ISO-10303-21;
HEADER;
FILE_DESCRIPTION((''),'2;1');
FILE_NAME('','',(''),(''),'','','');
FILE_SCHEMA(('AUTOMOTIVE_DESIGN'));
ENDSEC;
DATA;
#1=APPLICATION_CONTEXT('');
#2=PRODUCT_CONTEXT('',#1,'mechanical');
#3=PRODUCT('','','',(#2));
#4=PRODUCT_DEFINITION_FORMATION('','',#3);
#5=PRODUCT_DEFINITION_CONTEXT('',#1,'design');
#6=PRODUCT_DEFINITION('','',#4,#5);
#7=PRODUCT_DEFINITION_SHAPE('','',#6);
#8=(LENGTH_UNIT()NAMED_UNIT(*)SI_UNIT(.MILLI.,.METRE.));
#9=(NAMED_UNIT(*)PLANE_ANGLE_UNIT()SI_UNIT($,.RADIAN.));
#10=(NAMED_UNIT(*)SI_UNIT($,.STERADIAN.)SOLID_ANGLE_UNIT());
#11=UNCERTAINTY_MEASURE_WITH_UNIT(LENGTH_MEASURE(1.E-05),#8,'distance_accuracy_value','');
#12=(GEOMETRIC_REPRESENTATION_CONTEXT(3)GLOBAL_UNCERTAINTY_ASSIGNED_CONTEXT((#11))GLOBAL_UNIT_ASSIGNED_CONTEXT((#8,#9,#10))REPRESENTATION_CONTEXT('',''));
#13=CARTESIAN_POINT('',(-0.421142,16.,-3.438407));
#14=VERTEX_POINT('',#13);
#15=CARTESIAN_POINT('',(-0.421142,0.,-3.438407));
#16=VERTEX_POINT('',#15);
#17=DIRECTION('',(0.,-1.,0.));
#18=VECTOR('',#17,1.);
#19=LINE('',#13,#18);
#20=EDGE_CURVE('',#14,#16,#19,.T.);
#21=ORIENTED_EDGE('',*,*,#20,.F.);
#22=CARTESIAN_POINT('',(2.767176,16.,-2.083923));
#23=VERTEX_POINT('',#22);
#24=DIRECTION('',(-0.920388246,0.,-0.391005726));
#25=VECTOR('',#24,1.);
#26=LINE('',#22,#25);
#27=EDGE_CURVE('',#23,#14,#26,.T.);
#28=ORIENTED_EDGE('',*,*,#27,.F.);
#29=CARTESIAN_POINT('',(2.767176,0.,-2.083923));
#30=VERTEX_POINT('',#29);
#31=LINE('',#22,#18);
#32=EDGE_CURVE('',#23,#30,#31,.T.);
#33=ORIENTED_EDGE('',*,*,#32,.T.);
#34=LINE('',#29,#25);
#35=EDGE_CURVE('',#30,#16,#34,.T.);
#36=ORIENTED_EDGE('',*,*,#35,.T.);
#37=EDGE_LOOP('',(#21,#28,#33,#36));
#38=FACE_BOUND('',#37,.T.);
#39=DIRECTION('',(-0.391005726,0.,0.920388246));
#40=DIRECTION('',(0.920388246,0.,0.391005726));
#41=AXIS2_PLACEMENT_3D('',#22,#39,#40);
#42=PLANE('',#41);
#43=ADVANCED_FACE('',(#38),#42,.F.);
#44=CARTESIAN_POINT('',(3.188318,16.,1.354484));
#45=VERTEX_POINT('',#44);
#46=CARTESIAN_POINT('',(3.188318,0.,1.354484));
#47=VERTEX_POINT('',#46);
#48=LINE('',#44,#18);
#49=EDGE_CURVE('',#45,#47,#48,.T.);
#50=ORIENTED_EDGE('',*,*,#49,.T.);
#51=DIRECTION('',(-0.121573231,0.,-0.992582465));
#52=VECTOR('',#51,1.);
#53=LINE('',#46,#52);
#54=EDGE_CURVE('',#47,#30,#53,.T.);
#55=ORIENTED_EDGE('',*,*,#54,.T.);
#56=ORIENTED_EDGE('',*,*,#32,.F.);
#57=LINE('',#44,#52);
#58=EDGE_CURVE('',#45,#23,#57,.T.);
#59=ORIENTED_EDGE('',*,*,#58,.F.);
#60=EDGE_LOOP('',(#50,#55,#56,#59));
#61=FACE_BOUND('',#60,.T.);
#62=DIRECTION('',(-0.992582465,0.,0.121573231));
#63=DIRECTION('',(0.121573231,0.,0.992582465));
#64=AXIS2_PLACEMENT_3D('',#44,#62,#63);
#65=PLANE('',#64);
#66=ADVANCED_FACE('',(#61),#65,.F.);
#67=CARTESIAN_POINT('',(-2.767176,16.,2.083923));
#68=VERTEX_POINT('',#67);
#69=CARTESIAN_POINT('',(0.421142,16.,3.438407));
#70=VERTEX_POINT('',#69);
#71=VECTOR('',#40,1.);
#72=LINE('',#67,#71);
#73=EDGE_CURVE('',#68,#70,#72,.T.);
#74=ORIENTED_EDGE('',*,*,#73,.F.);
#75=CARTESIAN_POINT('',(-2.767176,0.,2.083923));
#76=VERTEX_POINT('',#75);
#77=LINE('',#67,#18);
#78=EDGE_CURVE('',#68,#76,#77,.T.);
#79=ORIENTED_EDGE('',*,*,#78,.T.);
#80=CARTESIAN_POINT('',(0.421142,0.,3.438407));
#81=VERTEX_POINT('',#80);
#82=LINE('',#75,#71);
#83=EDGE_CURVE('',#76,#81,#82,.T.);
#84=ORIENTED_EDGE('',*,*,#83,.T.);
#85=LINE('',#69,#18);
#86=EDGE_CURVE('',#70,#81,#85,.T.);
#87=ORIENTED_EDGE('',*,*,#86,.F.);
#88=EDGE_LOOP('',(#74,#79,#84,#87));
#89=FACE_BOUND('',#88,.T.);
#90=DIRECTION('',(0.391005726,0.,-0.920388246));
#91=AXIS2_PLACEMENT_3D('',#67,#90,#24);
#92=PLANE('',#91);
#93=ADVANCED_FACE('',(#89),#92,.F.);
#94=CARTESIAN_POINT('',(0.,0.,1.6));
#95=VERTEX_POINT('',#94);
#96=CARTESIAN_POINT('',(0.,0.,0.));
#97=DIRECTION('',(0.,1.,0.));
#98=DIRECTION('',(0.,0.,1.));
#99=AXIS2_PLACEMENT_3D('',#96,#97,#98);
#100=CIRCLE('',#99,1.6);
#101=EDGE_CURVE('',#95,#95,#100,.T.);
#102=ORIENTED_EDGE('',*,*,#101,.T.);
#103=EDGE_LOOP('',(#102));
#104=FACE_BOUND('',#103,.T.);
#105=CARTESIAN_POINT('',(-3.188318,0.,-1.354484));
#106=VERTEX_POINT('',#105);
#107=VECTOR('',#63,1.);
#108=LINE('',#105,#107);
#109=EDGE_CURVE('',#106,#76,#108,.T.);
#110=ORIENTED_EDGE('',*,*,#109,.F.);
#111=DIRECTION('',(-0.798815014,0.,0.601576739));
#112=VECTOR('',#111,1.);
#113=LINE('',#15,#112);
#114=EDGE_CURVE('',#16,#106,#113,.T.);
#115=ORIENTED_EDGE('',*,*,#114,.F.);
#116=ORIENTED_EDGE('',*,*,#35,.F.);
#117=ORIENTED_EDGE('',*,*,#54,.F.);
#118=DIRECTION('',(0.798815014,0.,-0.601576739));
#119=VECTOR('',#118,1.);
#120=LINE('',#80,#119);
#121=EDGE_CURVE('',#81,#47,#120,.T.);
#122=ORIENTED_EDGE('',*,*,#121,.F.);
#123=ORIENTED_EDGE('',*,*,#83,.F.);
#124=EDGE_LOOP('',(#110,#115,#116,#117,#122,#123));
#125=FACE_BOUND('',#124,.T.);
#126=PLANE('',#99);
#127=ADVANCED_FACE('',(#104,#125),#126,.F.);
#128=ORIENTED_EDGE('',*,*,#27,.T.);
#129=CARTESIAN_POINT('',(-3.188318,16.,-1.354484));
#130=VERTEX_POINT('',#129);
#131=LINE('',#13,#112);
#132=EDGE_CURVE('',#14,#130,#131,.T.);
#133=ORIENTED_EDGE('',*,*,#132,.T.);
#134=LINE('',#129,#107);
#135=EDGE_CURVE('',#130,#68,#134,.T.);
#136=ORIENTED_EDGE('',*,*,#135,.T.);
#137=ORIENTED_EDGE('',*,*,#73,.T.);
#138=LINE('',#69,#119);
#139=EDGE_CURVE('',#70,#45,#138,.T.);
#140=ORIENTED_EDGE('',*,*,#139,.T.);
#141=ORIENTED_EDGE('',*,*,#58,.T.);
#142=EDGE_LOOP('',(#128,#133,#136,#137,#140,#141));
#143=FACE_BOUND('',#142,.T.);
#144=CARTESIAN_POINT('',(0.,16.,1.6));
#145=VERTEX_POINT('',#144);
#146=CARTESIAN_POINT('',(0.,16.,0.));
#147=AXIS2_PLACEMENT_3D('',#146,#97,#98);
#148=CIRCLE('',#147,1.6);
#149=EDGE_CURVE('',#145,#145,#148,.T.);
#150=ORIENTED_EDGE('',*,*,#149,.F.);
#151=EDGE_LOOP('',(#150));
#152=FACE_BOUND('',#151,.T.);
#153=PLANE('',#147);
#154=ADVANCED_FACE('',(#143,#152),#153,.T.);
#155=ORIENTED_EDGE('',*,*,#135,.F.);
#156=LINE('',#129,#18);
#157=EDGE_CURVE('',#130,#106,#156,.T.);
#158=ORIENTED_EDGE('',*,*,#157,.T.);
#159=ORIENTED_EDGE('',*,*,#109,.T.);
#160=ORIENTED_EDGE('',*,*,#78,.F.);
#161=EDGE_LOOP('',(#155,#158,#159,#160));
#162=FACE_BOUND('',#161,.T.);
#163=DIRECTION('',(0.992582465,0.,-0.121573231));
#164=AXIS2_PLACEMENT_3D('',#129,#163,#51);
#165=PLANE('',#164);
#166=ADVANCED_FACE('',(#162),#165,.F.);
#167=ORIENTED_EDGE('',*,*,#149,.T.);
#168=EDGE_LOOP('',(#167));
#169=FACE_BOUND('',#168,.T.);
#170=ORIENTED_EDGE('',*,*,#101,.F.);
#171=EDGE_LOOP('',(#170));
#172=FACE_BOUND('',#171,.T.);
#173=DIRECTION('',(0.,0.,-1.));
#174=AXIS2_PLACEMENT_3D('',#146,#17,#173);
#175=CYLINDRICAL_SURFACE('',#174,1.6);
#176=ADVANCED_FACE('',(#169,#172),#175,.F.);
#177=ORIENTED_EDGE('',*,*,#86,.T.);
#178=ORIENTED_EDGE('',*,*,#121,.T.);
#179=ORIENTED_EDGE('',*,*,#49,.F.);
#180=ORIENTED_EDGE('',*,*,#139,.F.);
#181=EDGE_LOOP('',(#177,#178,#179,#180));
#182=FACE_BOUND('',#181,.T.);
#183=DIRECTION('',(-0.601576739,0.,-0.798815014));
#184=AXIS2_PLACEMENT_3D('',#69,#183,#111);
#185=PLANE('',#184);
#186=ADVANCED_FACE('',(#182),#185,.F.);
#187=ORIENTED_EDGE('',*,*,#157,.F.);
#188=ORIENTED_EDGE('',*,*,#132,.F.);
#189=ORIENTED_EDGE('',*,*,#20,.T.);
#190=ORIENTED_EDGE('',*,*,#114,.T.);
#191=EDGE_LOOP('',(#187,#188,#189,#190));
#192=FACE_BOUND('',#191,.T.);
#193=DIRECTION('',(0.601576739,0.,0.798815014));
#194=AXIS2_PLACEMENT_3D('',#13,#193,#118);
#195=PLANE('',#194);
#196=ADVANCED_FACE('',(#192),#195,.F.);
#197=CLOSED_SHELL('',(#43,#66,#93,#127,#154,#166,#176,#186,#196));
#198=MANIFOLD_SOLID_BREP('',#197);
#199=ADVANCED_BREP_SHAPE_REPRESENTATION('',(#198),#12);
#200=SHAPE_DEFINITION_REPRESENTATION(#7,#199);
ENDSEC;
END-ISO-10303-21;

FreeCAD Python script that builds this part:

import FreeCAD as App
import Part
import Sketcher
from FreeCAD import Vector
Q = App.Units.Quantity


def add_polygon(sketch, points):
    """Adds a closed chain of lines whose ends are joined by coincident constraints."""
    first, n = sketch.GeometryCount, len(points)
    for a, b in zip(points, points[1:] + points[:1]):
        sketch.addGeometry(Part.LineSegment(App.Vector(*a, 0), App.Vector(*b, 0)), False)
    for i in range(n):
        sketch.addConstraint(Sketcher.Constraint("Coincident", first + i, 2, first + (i + 1) % n, 1))

doc = App.newDocument("Part")
body = doc.addObject("PartDesign::Body", "Body")

sketch1 = body.newObject("Sketcher::SketchObject", "Sketch")
sketch1.AttachmentSupport = (doc.getObject("XZ_Plane"), [""])
sketch1.MapMode = "FlatFace"
add_polygon(sketch1, [(2.767176, -2.083923), (-0.421142, -3.438407), (-3.188318, -1.354484), (-2.767176, 2.083923), (0.421142, 3.438407), (3.188318, 1.354484)])
sketch1.addGeometry(Part.Circle(Vector(0, 0, 0), Vector(0, 0, 1), 1.6), False)
sketch1.addConstraint([
    Sketcher.Constraint("Coincident", 6, 3, -1, 1),
    Sketcher.Constraint("Symmetric", 0, 2, 3, 2, -1, 1),
    Sketcher.Constraint("Symmetric", 1, 2, 4, 2, -1, 1),
    Sketcher.Constraint("Symmetric", 2, 2, 5, 2, -1, 1),
    Sketcher.Constraint("Equal", 0, 1),
    Sketcher.Constraint("Equal", 1, 2),
    Sketcher.Constraint("Diameter", 6, Q("3.2 mm")),
    Sketcher.Constraint("Distance", 0, Q("3.464102 mm")),
    Sketcher.Constraint("DistanceX", 1, 2, -1, 1, Q("3.188318 mm")),
    Sketcher.Constraint("DistanceY", 0, 2, 2, 2, Q("5.522329 mm")),
    Sketcher.Constraint("DistanceX", 2, 2, 3, 2, Q("3.188318 mm")),
])
pad1 = body.newObject("PartDesign::Pad", "Pad")
pad1.Profile = sketch1
pad1.Length = 16
pad1.Reversed = True

doc.recompute()
